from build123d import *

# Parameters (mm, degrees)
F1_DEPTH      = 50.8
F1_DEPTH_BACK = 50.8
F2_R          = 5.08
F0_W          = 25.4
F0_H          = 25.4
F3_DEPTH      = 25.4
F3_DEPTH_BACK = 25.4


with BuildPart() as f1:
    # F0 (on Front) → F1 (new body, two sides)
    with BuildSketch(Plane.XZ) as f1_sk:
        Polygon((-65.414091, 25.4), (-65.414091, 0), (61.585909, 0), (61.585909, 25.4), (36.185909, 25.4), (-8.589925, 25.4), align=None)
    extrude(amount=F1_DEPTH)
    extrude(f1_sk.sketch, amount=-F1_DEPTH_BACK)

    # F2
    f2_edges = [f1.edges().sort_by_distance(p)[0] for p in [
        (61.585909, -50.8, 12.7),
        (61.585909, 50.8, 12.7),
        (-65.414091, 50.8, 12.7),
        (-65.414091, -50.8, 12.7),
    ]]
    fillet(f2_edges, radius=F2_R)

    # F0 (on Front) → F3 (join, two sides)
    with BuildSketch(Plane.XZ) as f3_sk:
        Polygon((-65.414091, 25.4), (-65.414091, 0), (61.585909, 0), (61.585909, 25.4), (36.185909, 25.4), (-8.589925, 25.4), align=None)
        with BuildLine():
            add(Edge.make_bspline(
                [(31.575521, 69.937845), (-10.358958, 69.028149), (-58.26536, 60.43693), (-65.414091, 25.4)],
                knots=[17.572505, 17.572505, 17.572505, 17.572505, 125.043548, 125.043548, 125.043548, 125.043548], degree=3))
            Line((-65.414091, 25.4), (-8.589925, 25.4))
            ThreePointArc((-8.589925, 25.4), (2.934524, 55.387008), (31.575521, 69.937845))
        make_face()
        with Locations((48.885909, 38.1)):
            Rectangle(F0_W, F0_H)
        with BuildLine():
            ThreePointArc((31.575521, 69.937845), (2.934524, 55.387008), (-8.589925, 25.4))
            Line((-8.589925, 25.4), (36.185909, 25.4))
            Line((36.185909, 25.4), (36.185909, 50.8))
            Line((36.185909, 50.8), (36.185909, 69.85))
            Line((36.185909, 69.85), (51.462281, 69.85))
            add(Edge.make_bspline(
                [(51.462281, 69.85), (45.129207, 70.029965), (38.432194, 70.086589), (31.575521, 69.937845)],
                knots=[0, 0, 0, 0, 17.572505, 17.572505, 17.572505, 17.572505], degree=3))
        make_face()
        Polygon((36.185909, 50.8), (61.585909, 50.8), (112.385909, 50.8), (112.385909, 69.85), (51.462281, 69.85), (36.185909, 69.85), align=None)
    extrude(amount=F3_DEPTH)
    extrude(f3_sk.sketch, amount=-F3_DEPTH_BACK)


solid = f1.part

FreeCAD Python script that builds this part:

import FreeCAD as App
import Part
import Sketcher
Q = App.Units.Quantity


def edges_at(feature, points):
    """Names of the edges that pass closest to the given points."""
    edges = feature.Shape.Edges
    near = lambda p: min(range(len(edges)), key=lambda i: edges[i].distToShape(Part.Vertex(*p))[0])
    return sorted({f"Edge{near(p) + 1}" for p in points})


def add_polygon(sketch, points):
    """Adds a closed chain of lines whose ends are joined by coincident constraints."""
    first, n = sketch.GeometryCount, len(points)
    for a, b in zip(points, points[1:] + points[:1]):
        sketch.addGeometry(Part.LineSegment(App.Vector(*a, 0), App.Vector(*b, 0)), False)
    for i in range(n):
        sketch.addConstraint(Sketcher.Constraint("Coincident", first + i, 2, first + (i + 1) % n, 1))

doc = App.newDocument("Part")
body = doc.addObject("PartDesign::Body", "Body")

sketch1 = body.newObject("Sketcher::SketchObject", "Sketch")
sketch1.AttachmentSupport = (doc.getObject("XZ_Plane"), [""])
sketch1.MapMode = "FlatFace"
add_polygon(sketch1, [(-65, 25), (-65, 0), (62, 0), (62, 25)])
sketch1.addConstraint([
    Sketcher.Constraint("Vertical", 0),
    Sketcher.Constraint("Horizontal", 1),
    Sketcher.Constraint("Vertical", 2),
    Sketcher.Constraint("Horizontal", 3),
    Sketcher.Constraint("PointOnObject", 0, 2, -1),
    Sketcher.Constraint("DistanceX", 1, 1, 1, 2, Q("5 in")),
    Sketcher.Constraint("DistanceY", 0, 2, 0, 1, Q("1 in")),
    Sketcher.Constraint("DistanceX", 0, 2, -1, 1, 65.414091),
])
pad1 = body.newObject("PartDesign::Pad", "Pad")
pad1.Profile = sketch1
pad1.Type = "TwoLengths"
pad1.Length = Q("2 in")
pad1.Length2 = Q("2 in")
doc.recompute()

fillet = body.newObject("PartDesign::Fillet", "Fillet")
fillet.Base = (pad1, edges_at(pad1, [
    (61.586, -50.8, 12.7),
    (61.586, 50.8, 12.7),
    (-65.414, 50.8, 12.7),
    (-65.414, -50.8, 12.7),
]))
fillet.Radius = Q("0.2 in")

sketch2 = body.newObject("Sketcher::SketchObject", "Sketch001")
sketch2.AttachmentSupport = (doc.getObject("XZ_Plane"), [""])
sketch2.MapMode = "FlatFace"
sketch2.addGeometry([
    Part.LineSegment(App.Vector(-65.414091, 25.4, 0), App.Vector(-65.414091, 0, 0)),
    Part.LineSegment(App.Vector(-65.414091, 0, 0), App.Vector(61.585909, 0, 0)),
    Part.LineSegment(App.Vector(61.585909, 0, 0), App.Vector(61.585909, 50.8, 0)),
    Part.LineSegment(App.Vector(61.585909, 50.8, 0), App.Vector(112.385909, 50.8, 0)),
    Part.LineSegment(App.Vector(112.385909, 50.8, 0), App.Vector(112.385909, 69.85, 0)),
    Part.LineSegment(App.Vector(112.385909, 69.85, 0), App.Vector(51.462281, 69.85, 0)),
    Part.BSplineCurve([App.Vector(51.462281, 69.85, 0), App.Vector(45.129207, 70.029965, 0), App.Vector(38.432194, 70.086589, 0), App.Vector(31.575521, 69.937845, 0)], [4, 4], [0, 17.572505], False, 3, [1, 1, 1, 1], False),
    Part.BSplineCurve([App.Vector(31.575521, 69.937845, 0), App.Vector(-10.358958, 69.028149, 0), App.Vector(-58.26536, 60.43693, 0), App.Vector(-65.414091, 25.4, 0)], [4, 4], [17.572505, 125.043548], False, 3, [1, 1, 1, 1], False),
], False)
sketch2.addConstraint([
    Sketcher.Constraint("Block", 6),
    Sketcher.Constraint("Block", 7),
    Sketcher.Constraint("Coincident", 0, 2, 1, 1),
    Sketcher.Constraint("Coincident", 1, 2, 2, 1),
    Sketcher.Constraint("Coincident", 2, 2, 3, 1),
    Sketcher.Constraint("Coincident", 3, 2, 4, 1),
    Sketcher.Constraint("Coincident", 4, 2, 5, 1),
    Sketcher.Constraint("Coincident", 5, 2, 6, 1),
    Sketcher.Constraint("Coincident", 7, 2, 0, 1),
    Sketcher.Constraint("Vertical", 0),
    Sketcher.Constraint("Horizontal", 1),
    Sketcher.Constraint("Vertical", 2),
    Sketcher.Constraint("Horizontal", 3),
    Sketcher.Constraint("Vertical", 4),
    Sketcher.Constraint("Horizontal", 5),
    Sketcher.Constraint("PointOnObject", 0, 2, -1),
    Sketcher.Constraint("Equal", 3, 2),
    Sketcher.Constraint("DistanceX", 1, 1, 1, 2, Q("5 in")),
    Sketcher.Constraint("DistanceX", 3, 1, 3, 2, Q("2 in")),
])
pad2 = body.newObject("PartDesign::Pad", "Pad001")
pad2.Profile = sketch2
pad2.Type = "TwoLengths"
pad2.Length = Q("1 in")
pad2.Length2 = Q("1 in")

doc.recompute()
